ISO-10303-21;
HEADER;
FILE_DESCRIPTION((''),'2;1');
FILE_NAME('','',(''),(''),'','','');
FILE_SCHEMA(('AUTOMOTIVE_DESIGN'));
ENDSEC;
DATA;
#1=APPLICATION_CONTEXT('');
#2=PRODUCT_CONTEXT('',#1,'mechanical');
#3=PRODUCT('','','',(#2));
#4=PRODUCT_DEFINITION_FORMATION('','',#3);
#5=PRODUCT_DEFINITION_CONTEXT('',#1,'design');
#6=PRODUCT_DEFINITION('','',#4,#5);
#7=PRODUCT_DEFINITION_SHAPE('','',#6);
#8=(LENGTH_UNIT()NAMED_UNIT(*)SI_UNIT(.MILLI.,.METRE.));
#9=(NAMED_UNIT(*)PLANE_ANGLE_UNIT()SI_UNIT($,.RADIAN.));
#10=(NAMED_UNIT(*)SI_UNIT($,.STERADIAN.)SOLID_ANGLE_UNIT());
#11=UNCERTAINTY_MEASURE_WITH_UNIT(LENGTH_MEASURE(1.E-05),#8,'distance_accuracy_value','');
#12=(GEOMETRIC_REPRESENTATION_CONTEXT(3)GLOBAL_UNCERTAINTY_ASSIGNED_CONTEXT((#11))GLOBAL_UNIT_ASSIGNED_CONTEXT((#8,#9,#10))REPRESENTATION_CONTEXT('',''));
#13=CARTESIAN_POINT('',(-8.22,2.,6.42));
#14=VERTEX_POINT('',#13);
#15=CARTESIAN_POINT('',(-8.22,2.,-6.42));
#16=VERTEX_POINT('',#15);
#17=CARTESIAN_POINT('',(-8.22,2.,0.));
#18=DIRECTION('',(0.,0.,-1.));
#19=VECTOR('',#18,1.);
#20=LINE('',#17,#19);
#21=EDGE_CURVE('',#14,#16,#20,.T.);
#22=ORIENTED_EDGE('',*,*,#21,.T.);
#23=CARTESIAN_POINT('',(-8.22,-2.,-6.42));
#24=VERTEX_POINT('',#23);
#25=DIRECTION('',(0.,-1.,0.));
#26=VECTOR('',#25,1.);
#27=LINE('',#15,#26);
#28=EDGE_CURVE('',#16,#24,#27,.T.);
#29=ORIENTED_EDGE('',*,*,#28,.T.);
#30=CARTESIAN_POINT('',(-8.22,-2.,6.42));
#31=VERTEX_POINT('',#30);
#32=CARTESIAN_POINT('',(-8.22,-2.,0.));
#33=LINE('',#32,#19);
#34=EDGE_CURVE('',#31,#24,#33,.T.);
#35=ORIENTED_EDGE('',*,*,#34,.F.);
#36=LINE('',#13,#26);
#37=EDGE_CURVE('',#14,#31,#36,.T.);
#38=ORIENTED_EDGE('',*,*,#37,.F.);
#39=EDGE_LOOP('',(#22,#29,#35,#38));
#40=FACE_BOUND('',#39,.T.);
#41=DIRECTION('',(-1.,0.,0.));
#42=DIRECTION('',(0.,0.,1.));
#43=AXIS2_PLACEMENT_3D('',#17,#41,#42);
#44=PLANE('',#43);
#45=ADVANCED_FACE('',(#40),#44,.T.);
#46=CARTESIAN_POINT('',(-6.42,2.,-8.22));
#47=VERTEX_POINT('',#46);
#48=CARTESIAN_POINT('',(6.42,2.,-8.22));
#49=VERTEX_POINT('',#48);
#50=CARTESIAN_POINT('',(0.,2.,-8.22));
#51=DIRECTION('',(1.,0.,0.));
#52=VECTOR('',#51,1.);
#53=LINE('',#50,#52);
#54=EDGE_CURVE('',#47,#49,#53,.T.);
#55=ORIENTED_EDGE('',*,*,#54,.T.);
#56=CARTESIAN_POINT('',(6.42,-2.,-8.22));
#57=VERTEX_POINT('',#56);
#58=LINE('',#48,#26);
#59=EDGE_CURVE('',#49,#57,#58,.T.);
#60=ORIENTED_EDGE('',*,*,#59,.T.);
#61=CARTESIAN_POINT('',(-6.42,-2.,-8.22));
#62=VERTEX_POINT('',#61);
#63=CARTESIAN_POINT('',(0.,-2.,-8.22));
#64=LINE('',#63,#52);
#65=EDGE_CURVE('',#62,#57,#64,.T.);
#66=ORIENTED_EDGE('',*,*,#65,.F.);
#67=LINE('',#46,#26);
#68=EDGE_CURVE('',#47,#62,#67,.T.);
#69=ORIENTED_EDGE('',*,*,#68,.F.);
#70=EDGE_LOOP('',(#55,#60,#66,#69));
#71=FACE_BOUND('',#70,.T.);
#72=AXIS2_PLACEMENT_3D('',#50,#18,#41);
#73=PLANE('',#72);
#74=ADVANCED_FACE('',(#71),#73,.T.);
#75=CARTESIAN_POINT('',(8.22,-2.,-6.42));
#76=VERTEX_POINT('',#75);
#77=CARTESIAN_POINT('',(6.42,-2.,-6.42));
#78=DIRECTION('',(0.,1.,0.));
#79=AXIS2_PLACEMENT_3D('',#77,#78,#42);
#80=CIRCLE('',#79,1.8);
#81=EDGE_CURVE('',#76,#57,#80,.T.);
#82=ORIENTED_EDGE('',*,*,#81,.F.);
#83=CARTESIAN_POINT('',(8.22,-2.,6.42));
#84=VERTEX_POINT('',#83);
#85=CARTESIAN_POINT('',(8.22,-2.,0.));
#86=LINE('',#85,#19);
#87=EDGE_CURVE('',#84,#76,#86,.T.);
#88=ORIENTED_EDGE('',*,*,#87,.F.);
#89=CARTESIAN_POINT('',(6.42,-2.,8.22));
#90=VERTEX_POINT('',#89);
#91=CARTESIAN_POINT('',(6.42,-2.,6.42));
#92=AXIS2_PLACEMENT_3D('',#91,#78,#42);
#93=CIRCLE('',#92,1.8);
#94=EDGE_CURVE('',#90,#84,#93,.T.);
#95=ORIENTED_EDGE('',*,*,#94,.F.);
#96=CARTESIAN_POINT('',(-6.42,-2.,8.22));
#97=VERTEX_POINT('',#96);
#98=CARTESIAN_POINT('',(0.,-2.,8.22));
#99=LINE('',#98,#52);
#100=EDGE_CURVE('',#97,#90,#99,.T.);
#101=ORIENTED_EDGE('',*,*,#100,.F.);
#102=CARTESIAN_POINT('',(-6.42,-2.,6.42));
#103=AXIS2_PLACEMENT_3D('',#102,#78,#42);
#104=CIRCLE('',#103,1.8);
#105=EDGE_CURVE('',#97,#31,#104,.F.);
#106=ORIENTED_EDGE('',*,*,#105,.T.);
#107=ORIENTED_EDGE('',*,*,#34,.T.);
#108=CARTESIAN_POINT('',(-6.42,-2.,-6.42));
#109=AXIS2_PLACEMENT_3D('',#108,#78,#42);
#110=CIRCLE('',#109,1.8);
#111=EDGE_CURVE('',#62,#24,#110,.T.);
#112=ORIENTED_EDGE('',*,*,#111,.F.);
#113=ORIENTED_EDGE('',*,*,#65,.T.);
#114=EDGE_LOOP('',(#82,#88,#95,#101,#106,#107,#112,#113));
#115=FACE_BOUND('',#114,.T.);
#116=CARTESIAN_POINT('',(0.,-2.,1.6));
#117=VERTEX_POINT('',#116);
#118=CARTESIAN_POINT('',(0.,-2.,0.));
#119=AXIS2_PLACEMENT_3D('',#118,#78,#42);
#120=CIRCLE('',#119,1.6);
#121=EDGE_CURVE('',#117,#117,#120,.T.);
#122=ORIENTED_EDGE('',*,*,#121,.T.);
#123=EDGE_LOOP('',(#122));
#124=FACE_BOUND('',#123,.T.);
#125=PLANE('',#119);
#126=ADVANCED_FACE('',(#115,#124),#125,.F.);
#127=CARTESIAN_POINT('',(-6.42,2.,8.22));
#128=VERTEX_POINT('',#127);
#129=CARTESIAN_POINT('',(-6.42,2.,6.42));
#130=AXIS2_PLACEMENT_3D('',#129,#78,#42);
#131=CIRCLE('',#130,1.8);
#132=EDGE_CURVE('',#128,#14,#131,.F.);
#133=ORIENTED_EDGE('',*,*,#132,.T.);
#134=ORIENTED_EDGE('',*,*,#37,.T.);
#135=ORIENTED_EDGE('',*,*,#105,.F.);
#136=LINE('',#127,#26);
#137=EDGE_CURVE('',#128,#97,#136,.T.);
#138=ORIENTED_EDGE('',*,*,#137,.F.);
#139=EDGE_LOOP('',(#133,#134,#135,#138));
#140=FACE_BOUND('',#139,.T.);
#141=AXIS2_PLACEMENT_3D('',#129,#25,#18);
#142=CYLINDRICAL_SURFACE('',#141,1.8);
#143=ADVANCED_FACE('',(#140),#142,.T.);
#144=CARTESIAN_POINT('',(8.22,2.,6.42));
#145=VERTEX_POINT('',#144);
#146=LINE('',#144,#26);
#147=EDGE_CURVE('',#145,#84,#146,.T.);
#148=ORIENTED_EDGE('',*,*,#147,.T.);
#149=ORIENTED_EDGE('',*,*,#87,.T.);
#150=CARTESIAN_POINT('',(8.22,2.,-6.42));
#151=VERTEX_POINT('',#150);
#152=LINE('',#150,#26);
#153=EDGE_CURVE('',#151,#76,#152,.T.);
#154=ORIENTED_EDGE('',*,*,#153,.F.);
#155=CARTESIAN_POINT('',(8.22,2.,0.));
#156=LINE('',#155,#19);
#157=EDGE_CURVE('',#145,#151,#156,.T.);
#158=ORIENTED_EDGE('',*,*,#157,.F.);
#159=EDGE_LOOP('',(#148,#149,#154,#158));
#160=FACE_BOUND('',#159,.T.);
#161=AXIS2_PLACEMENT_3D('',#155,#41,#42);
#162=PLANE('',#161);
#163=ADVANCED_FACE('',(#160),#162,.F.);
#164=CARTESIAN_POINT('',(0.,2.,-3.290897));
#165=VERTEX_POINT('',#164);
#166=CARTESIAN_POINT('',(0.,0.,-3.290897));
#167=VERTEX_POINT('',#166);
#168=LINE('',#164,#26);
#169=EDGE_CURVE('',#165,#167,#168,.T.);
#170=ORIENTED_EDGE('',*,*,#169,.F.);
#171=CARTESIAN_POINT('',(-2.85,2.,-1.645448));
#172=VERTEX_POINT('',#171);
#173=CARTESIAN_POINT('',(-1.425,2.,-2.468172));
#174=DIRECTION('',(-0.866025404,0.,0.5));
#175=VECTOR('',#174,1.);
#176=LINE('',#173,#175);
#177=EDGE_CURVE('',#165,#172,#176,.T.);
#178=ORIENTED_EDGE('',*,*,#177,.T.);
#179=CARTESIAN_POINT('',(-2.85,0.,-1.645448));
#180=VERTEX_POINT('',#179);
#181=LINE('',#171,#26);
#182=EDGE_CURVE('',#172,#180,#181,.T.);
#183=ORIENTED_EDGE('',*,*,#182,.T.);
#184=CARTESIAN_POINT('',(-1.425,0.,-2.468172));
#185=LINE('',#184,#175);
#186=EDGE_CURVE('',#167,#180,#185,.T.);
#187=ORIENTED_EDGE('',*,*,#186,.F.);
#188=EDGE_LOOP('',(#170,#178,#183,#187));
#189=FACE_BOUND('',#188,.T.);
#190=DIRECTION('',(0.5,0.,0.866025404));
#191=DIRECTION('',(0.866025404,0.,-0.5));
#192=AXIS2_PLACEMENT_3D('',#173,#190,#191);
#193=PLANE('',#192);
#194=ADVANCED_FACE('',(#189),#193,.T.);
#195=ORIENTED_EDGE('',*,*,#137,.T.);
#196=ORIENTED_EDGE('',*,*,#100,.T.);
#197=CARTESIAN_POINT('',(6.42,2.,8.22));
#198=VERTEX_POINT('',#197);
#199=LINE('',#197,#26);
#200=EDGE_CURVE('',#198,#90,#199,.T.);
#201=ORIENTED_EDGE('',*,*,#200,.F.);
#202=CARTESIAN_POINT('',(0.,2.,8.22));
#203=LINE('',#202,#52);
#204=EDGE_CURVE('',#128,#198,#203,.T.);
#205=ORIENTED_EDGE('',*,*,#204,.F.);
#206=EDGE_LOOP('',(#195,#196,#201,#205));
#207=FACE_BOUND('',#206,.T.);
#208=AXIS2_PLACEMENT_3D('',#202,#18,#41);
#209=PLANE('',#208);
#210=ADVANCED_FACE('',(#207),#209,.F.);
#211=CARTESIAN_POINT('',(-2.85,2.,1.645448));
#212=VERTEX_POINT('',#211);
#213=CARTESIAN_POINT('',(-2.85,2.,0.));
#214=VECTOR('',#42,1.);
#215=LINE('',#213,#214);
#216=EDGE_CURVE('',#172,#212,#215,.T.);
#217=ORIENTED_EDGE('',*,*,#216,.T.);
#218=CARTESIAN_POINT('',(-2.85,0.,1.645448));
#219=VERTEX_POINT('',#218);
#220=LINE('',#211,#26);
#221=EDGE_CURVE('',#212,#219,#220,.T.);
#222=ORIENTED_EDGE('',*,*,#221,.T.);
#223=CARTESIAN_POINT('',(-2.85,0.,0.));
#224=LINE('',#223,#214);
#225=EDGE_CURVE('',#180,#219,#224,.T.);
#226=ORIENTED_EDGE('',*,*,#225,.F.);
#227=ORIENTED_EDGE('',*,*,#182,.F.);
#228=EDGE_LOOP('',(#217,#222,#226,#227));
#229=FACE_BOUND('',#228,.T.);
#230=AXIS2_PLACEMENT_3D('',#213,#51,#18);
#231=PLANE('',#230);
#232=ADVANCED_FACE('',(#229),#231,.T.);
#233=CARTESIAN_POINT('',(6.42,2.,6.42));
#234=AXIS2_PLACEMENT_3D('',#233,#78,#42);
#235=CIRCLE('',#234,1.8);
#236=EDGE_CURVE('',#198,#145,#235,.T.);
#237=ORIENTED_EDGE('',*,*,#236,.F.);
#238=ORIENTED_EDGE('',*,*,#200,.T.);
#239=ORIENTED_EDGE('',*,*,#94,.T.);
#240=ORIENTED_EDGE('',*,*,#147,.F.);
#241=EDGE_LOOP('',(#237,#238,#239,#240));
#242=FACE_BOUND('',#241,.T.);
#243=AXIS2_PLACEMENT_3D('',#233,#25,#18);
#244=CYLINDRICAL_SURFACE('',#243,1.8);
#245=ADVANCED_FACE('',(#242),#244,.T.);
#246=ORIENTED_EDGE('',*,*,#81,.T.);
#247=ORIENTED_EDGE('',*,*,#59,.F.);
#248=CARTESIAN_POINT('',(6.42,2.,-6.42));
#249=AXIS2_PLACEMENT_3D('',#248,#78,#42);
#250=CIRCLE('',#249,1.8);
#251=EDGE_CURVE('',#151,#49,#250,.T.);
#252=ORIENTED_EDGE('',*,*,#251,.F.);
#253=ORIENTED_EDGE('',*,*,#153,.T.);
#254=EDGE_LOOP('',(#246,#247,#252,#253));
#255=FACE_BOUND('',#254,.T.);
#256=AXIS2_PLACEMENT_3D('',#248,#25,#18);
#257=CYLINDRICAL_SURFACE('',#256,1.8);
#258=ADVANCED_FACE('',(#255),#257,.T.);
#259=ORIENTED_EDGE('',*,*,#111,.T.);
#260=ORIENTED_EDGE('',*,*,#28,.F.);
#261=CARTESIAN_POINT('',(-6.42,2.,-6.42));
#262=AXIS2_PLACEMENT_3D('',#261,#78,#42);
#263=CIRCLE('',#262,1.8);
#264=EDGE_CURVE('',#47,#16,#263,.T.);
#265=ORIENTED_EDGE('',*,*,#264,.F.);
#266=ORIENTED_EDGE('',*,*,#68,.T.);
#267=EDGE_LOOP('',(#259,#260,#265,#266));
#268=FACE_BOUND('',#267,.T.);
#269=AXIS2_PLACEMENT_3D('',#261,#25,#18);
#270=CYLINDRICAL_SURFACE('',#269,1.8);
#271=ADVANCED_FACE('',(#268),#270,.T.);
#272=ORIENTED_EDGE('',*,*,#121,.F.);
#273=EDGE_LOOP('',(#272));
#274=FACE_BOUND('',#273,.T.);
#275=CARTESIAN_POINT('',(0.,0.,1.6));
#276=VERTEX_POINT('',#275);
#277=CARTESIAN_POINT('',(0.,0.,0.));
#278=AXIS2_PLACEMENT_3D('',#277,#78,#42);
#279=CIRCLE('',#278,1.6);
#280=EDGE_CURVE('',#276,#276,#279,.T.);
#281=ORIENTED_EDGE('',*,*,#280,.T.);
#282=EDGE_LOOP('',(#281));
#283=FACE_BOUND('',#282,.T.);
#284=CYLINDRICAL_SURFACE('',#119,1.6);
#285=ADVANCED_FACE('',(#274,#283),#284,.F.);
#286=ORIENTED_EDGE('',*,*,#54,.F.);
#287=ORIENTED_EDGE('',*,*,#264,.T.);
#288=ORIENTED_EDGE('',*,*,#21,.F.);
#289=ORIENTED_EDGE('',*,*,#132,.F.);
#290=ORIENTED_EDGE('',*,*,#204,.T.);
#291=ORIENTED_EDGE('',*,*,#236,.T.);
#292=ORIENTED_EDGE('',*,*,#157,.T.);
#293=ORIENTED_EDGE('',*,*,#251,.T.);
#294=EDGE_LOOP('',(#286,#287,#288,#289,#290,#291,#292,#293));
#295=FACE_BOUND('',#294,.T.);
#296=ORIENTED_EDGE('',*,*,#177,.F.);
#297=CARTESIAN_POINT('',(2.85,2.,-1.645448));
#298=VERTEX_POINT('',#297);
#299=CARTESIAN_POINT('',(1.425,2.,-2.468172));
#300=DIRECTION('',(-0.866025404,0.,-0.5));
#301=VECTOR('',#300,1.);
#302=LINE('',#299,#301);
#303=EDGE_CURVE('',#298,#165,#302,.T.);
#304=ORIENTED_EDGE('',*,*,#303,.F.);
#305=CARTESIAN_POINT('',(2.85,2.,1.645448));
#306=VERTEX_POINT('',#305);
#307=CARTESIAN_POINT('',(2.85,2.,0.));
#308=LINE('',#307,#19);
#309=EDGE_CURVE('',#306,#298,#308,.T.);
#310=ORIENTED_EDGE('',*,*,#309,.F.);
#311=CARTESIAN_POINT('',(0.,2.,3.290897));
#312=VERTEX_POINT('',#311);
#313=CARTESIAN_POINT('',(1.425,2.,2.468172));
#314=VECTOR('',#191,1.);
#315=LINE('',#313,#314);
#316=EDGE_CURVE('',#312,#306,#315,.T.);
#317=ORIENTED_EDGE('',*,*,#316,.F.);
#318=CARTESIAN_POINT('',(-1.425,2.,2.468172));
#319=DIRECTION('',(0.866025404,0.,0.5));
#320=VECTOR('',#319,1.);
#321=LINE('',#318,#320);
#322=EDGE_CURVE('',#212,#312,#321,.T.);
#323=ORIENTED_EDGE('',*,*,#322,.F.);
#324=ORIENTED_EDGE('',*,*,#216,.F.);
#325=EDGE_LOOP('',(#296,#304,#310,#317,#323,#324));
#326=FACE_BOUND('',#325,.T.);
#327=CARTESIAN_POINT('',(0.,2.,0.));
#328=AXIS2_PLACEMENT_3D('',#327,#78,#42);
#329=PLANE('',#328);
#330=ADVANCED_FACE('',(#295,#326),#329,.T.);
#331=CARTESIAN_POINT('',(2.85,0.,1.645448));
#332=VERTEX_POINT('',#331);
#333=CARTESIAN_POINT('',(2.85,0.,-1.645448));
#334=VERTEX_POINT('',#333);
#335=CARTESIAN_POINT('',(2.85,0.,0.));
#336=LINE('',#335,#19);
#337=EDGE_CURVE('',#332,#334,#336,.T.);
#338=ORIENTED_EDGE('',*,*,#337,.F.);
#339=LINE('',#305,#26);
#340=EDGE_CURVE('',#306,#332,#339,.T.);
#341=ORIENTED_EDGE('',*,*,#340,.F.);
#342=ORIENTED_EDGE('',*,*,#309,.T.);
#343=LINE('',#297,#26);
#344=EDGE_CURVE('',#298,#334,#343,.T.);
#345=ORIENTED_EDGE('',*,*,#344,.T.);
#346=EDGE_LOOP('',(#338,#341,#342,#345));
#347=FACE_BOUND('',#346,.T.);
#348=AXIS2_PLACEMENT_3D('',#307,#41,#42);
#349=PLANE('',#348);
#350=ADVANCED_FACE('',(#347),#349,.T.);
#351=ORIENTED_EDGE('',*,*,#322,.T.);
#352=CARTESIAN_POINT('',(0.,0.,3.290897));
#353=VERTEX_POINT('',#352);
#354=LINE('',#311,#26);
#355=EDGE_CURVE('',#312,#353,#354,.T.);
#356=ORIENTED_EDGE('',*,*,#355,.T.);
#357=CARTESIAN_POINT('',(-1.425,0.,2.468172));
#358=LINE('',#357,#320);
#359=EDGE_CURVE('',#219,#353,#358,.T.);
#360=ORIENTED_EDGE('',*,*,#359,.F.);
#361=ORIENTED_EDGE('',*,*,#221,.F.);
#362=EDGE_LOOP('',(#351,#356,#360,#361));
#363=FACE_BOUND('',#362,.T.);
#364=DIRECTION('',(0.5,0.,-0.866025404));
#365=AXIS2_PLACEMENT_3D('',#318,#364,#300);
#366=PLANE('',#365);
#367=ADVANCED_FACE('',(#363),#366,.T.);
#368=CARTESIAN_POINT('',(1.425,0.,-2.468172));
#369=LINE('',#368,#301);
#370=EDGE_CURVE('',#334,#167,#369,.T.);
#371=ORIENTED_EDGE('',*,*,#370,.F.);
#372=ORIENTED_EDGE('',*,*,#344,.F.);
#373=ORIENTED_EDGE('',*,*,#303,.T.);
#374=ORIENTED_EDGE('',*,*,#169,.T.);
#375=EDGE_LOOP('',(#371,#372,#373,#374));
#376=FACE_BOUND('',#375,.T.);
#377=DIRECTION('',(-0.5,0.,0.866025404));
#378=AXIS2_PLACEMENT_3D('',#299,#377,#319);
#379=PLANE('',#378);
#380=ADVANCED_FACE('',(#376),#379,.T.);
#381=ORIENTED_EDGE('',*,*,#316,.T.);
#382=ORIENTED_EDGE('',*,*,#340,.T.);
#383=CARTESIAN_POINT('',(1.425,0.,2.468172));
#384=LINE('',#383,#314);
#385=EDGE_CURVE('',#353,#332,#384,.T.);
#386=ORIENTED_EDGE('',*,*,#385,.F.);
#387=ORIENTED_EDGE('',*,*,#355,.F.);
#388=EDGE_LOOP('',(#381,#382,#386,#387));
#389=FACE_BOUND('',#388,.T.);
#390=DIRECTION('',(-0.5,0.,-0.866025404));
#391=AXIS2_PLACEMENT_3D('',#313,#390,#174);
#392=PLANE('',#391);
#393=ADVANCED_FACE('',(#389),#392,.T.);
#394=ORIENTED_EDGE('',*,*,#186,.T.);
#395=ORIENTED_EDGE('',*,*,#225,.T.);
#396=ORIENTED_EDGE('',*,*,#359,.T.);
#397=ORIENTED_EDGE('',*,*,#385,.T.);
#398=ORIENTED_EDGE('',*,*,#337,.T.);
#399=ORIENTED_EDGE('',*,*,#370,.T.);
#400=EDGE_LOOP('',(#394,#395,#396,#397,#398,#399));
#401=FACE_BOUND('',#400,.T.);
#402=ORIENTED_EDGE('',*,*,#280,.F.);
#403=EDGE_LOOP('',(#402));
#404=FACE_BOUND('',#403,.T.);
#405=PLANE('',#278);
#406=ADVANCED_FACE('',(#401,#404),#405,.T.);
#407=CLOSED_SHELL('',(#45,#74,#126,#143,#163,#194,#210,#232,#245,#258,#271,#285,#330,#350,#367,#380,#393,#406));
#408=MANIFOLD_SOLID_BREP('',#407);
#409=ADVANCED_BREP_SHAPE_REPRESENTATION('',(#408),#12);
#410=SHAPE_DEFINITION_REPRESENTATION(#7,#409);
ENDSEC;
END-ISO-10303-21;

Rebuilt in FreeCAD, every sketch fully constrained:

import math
import FreeCAD as App
import Part
import Sketcher
from FreeCAD import Vector
Q = App.Units.Quantity

doc = App.newDocument("Part")
body = doc.addObject("PartDesign::Body", "Body")

# Sketch on XZ plane
sketch1 = body.newObject("Sketcher::SketchObject", "Sketch")
sketch1.AttachmentSupport = (doc.getObject("XZ_Plane"), [""])
sketch1.MapMode = "FlatFace"
sketch1.addGeometry([
    Part.ArcOfCircle(Part.Circle(Vector(-6.4, 6.4, 0), Vector(0, 0, 1), 1.8), math.radians(90), math.radians(180)),  # 0
    Part.LineSegment(Vector(-6.4, 8.2, 0), Vector(6.4, 8.2, 0)),  # 1
    Part.ArcOfCircle(Part.Circle(Vector(6.4, 6.4, 0), Vector(0, 0, 1), 1.8), math.radians(0), math.radians(90)),  # 2
    Part.LineSegment(Vector(8.2, 6.4, 0), Vector(8.2, -6.4, 0)),  # 3
    Part.ArcOfCircle(Part.Circle(Vector(6.4, -6.4, 0), Vector(0, 0, 1), 1.8), math.radians(-90), math.radians(0)),  # 4
    Part.LineSegment(Vector(6.4, -8.2, 0), Vector(-6.4, -8.2, 0)),  # 5
    Part.ArcOfCircle(Part.Circle(Vector(-6.4, -6.4, 0), Vector(0, 0, 1), 1.8), math.radians(180), math.radians(270)),  # 6
    Part.LineSegment(Vector(-8.2, -6.4, 0), Vector(-8.2, 6.4, 0)),  # 7
    Part.LineSegment(Vector(-2.9, 1.6, 0), Vector(-2.9, -1.6, 0)),  # 8
    Part.LineSegment(Vector(-2.9, -1.6, 0), Vector(0, -3.3, 0)),  # 9
    Part.LineSegment(Vector(0, -3.3, 0), Vector(2.9, -1.6, 0)),  # 10
    Part.LineSegment(Vector(2.9, -1.6, 0), Vector(2.9, 1.6, 0)),  # 11
    Part.LineSegment(Vector(2.9, 1.6, 0), Vector(0, 3.3, 0)),  # 12
    Part.LineSegment(Vector(0, 3.3, 0), Vector(-2.9, 1.6, 0)),  # 13
], False)
sketch1.addConstraint([
    Sketcher.Constraint("Tangent", 0, 1, 1, 1),
    Sketcher.Constraint("Tangent", 1, 2, 2, 2),
    Sketcher.Constraint("Tangent", 2, 1, 3, 1),
    Sketcher.Constraint("Tangent", 3, 2, 4, 2),
    Sketcher.Constraint("Tangent", 4, 1, 5, 1),
    Sketcher.Constraint("Tangent", 5, 2, 6, 2),
    Sketcher.Constraint("Tangent", 6, 1, 7, 1),
    Sketcher.Constraint("Tangent", 7, 2, 0, 2),
    Sketcher.Constraint("Coincident", 8, 2, 9, 1),
    Sketcher.Constraint("Coincident", 9, 2, 10, 1),
    Sketcher.Constraint("Coincident", 10, 2, 11, 1),
    Sketcher.Constraint("Coincident", 11, 2, 12, 1),
    Sketcher.Constraint("Coincident", 12, 2, 13, 1),
    Sketcher.Constraint("Coincident", 13, 2, 8, 1),
    Sketcher.Constraint("Horizontal", 1),
    Sketcher.Constraint("Vertical", 3),
    Sketcher.Constraint("Horizontal", 5),
    Sketcher.Constraint("Vertical", 7),
    Sketcher.Constraint("Vertical", 8),
    Sketcher.Constraint("Vertical", 11),
    Sketcher.Constraint("Equal", 0, 2),
    Sketcher.Constraint("Equal", 2, 4),
    Sketcher.Constraint("Equal", 4, 6),
    Sketcher.Constraint("Symmetric", 0, 3, 4, 3, -1, 1),
    Sketcher.Constraint("Symmetric", 8, 2, 11, 2, -1, 1),
    Sketcher.Constraint("Symmetric", 9, 2, 12, 2, -1, 1),
    Sketcher.Constraint("PointOnObject", 9, 2, -2),
    Sketcher.Constraint("Parallel", 10, 13),
    Sketcher.Constraint("Horizontal", 8, 2, 10, 2),
    Sketcher.Constraint("Equal", 5, 3),
    Sketcher.Constraint("Radius", 0, 1.8),
    Sketcher.Constraint("Angle", 9, Q("-30 deg")),
    Sketcher.Constraint("DistanceX", 1, 1, 1, 2, 12.84),
    Sketcher.Constraint("DistanceX", 8, 2, 10, 2, 5.7),
    Sketcher.Constraint("DistanceY", 8, 2, 8, 1, 3.290897),
])
pad1 = body.newObject("PartDesign::Pad", "Pad")
pad1.Profile = sketch1
pad1.Length = 2
pad1.Reversed = True

# Sketch on XZ plane
sketch2 = body.newObject("Sketcher::SketchObject", "Sketch001")
sketch2.AttachmentSupport = (doc.getObject("XZ_Plane"), [""])
sketch2.MapMode = "FlatFace"
sketch2.AttachmentOffset = App.Placement(Vector(0, 0, 2), App.Rotation())
sketch2.addGeometry([
    Part.ArcOfCircle(Part.Circle(Vector(-6.4, 6.4, 0), Vector(0, 0, 1), 1.8), math.radians(90), math.radians(180)),  # 0
    Part.LineSegment(Vector(-6.4, 8.2, 0), Vector(6.4, 8.2, 0)),  # 1
    Part.ArcOfCircle(Part.Circle(Vector(6.4, 6.4, 0), Vector(0, 0, 1), 1.8), math.radians(0), math.radians(90)),  # 2
    Part.LineSegment(Vector(8.2, 6.4, 0), Vector(8.2, -6.4, 0)),  # 3
    Part.ArcOfCircle(Part.Circle(Vector(6.4, -6.4, 0), Vector(0, 0, 1), 1.8), math.radians(-90), math.radians(0)),  # 4
    Part.LineSegment(Vector(6.4, -8.2, 0), Vector(-6.4, -8.2, 0)),  # 5
    Part.ArcOfCircle(Part.Circle(Vector(-6.4, -6.4, 0), Vector(0, 0, 1), 1.8), math.radians(180), math.radians(270)),  # 6
    Part.LineSegment(Vector(-8.2, -6.4, 0), Vector(-8.2, 6.4, 0)),  # 7
    Part.Circle(Vector(0, 0, 0), Vector(0, 0, 1), 1.6),  # 8
], False)
sketch2.addConstraint([
    Sketcher.Constraint("Tangent", 0, 1, 1, 1),
    Sketcher.Constraint("Tangent", 1, 2, 2, 2),
    Sketcher.Constraint("Tangent", 2, 1, 3, 1),
    Sketcher.Constraint("Tangent", 3, 2, 4, 2),
    Sketcher.Constraint("Tangent", 4, 1, 5, 1),
    Sketcher.Constraint("Tangent", 5, 2, 6, 2),
    Sketcher.Constraint("Tangent", 6, 1, 7, 1),
    Sketcher.Constraint("Tangent", 7, 2, 0, 2),
    Sketcher.Constraint("Horizontal", 1),
    Sketcher.Constraint("Vertical", 3),
    Sketcher.Constraint("Horizontal", 5),
    Sketcher.Constraint("Vertical", 7),
    Sketcher.Constraint("Coincident", 8, 3, -1, 1),
    Sketcher.Constraint("Equal", 0, 2),
    Sketcher.Constraint("Equal", 2, 4),
    Sketcher.Constraint("Equal", 4, 6),
    Sketcher.Constraint("Symmetric", 0, 3, 4, 3, -1, 1),
    Sketcher.Constraint("Equal", 5, 3),
    Sketcher.Constraint("Diameter", 8, 3.2),
    Sketcher.Constraint("Radius", 0, 1.8),
    Sketcher.Constraint("DistanceX", 1, 1, 1, 2, 12.84),
])
pad2 = body.newObject("PartDesign::Pad", "Pad001")
pad2.Profile = sketch2
pad2.Length = 2
pad2.Reversed = True

doc.recompute()
